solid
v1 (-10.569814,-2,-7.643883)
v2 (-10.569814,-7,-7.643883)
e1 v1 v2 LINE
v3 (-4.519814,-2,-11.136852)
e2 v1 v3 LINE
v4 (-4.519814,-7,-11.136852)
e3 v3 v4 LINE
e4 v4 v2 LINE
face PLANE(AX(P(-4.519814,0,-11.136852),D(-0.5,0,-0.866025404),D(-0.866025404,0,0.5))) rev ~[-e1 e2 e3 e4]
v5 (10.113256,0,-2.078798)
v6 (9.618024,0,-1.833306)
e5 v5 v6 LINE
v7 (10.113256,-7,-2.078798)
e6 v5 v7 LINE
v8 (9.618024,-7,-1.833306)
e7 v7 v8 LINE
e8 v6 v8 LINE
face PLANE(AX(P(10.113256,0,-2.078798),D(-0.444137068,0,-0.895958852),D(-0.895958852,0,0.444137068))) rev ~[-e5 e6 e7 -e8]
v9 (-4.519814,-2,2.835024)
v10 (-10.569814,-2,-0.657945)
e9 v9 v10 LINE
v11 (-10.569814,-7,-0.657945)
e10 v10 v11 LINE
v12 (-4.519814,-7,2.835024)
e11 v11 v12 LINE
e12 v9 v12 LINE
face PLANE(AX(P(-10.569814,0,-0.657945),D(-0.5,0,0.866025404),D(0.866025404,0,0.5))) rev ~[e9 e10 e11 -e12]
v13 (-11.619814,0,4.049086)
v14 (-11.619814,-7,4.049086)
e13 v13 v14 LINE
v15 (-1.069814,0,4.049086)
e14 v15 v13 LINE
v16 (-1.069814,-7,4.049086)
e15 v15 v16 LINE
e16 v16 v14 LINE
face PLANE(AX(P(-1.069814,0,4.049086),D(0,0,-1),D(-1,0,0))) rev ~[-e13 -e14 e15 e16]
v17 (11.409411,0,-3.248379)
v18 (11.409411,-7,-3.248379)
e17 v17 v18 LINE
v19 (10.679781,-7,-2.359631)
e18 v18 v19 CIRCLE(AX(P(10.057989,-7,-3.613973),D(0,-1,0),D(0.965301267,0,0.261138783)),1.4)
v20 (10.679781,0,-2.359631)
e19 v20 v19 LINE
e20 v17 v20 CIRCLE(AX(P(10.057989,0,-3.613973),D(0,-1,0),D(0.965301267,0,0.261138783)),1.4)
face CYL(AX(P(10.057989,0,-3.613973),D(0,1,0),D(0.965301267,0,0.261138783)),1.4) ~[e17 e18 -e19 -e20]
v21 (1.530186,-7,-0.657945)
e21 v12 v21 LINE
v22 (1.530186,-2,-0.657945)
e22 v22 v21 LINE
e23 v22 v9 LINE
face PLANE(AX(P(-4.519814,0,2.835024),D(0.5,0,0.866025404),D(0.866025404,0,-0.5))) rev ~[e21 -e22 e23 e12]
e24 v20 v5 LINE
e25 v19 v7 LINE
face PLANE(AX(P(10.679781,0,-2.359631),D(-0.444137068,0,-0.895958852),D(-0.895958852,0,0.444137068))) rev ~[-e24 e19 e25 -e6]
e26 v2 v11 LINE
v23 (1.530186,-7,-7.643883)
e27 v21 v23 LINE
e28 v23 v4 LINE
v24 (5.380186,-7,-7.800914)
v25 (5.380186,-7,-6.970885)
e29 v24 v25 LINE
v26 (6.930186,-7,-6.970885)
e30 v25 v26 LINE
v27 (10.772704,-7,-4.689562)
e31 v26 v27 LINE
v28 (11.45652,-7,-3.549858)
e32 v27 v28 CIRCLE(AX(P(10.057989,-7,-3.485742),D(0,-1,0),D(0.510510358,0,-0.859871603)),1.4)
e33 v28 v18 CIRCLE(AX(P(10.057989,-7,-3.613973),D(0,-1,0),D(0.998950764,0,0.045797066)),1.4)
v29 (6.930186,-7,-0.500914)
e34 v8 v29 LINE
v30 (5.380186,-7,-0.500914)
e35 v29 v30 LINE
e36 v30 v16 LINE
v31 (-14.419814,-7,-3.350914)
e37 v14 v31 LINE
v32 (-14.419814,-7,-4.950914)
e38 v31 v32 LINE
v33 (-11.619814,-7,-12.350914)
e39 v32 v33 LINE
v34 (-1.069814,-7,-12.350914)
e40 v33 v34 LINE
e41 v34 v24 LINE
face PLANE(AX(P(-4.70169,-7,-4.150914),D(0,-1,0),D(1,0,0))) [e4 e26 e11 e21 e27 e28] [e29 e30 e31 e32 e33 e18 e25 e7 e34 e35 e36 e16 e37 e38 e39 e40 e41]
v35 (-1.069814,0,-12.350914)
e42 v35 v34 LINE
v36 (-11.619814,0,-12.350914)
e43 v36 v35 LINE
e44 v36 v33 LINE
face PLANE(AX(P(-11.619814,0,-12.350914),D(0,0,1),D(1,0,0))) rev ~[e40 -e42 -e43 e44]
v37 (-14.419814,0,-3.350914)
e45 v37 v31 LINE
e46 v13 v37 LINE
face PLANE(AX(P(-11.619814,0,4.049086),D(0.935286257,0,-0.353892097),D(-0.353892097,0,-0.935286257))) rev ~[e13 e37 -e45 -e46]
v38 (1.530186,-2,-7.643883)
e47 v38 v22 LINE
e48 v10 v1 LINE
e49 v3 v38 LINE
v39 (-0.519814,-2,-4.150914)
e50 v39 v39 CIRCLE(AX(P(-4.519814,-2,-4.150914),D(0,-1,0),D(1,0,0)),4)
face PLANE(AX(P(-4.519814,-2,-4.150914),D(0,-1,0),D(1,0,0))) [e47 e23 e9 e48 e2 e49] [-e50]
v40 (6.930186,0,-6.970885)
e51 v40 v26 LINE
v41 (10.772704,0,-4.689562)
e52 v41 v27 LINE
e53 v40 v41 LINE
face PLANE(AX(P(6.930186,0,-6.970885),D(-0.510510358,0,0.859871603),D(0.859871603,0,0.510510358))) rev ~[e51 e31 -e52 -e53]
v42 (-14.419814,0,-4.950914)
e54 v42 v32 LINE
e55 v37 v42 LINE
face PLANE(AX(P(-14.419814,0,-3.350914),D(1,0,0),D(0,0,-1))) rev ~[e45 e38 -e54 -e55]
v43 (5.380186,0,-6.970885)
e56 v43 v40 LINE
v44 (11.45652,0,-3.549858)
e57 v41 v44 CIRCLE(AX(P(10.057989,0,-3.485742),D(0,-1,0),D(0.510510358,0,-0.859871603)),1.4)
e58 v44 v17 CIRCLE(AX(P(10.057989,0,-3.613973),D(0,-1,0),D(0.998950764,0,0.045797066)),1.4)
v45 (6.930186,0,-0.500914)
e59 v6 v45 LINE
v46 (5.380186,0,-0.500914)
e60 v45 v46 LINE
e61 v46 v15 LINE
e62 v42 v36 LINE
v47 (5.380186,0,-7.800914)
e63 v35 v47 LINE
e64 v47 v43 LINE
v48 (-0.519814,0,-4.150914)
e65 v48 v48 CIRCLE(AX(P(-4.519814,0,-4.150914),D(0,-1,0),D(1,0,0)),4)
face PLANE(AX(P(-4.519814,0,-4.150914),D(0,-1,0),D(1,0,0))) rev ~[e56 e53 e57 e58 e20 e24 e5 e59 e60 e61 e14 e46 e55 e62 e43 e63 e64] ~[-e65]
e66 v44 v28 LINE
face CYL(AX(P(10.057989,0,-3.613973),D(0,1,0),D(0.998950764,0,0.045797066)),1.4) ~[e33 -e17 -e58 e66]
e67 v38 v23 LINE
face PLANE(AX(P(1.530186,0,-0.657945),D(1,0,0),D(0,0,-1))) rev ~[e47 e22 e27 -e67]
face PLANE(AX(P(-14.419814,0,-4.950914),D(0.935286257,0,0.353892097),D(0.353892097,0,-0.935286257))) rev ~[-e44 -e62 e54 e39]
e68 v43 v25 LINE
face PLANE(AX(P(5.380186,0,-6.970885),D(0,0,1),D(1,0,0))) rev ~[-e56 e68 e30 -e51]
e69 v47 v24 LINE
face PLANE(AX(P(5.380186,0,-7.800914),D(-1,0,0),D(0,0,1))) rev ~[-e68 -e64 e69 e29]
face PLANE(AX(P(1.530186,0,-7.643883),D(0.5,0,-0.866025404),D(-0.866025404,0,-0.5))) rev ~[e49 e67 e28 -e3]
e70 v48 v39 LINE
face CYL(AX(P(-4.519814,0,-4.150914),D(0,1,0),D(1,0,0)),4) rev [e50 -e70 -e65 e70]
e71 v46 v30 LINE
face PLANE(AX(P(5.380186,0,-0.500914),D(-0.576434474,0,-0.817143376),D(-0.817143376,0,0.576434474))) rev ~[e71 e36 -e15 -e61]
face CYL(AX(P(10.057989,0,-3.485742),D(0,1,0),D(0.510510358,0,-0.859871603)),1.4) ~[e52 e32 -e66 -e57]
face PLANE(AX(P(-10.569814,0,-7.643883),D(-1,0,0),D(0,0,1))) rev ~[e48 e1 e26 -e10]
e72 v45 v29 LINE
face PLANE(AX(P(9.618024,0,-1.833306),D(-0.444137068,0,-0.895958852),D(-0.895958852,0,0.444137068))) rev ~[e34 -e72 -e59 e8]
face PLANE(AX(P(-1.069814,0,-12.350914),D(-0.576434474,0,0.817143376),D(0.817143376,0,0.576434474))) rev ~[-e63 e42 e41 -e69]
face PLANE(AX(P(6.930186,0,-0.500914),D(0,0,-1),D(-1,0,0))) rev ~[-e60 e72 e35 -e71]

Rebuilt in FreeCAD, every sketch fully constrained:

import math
import FreeCAD as App
import Part
import Sketcher

V = App.Vector
Q = App.Units.Quantity


def add_polygon(sketch, points):
    """Adds a closed chain of lines whose ends are joined by coincident constraints."""
    first, n = sketch.GeometryCount, len(points)
    for a, b in zip(points, points[1:] + points[:1]):
        sketch.addGeometry(Part.LineSegment(App.Vector(*a, 0), App.Vector(*b, 0)), False)
    for i in range(n):
        sketch.addConstraint(Sketcher.Constraint("Coincident", first + i, 2, first + (i + 1) % n, 1))

doc = App.newDocument("Part")
params = doc.addObject("Spreadsheet::Sheet", "Params")
for row, (alias, value) in enumerate([
    ("sketch1_radius", "1.4 mm"),
    ("sketch1_height", "1.6 mm"),
    ("sketch1_width", "10.55 mm"),
    ("sketch1_width2", "1.55 mm"),
    ("pad1_length", "7 mm"),
    ("sketch2_diameter", "8 mm"),
    ("pad2_length", "2 mm"),
], start=1):
    params.set(f"A{row}", alias)
    params.set(f"B{row}", "=" + value)
    params.setAlias(f"B{row}", alias)

body = doc.addObject("PartDesign::Body", "Body")

# Sketch on XZ plane
sketch1 = doc.addObject("Sketcher::SketchObject", "Sketch")
body.addObject(sketch1)
sketch1.AttachmentSupport = (doc.XZ_Plane, [""])
sketch1.MapMode = "FlatFace"
sketch1.addGeometry(Part.LineSegment(V(5.38, -0.5, 0), V(-1.07, 4.05, 0)), False)  # 0
sketch1.addGeometry(Part.LineSegment(V(-1.07, 4.05, 0), V(-11.62, 4.05, 0)), False)  # 1
sketch1.addGeometry(Part.LineSegment(V(-11.62, 4.05, 0), V(-14.42, -3.35, 0)), False)  # 2
sketch1.addGeometry(Part.LineSegment(V(-14.42, -3.35, 0), V(-14.42, -4.95, 0)), False)  # 3
sketch1.addGeometry(Part.LineSegment(V(-14.42, -4.95, 0), V(-11.62, -12.35, 0)), False)  # 4
sketch1.addGeometry(Part.LineSegment(V(-11.62, -12.35, 0), V(-1.07, -12.35, 0)), False)  # 5
sketch1.addGeometry(Part.LineSegment(V(-1.07, -12.35, 0), V(5.38, -7.8, 0)), False)  # 6
sketch1.addGeometry(Part.LineSegment(V(5.38, -7.8, 0), V(5.38, -6.97, 0)), False)  # 7
sketch1.addGeometry(Part.LineSegment(V(5.38, -6.97, 0), V(6.93, -6.97, 0)), False)  # 8
sketch1.addGeometry(Part.LineSegment(V(6.93, -6.97, 0), V(10.77, -4.69, 0)), False)  # 9
sketch1.addGeometry(Part.ArcOfCircle(Part.Circle(V(10.06, -3.49, 0), V(0, 0, 1), 1.4), math.radians(-59), math.radians(-3)), False)  # 10
sketch1.addGeometry(Part.ArcOfCircle(Part.Circle(V(10.06, -3.61, 0), V(0, 0, 1), 1.4), math.radians(2.62), math.radians(15.14)), False)  # 11
sketch1.addGeometry(Part.ArcOfCircle(Part.Circle(V(10.06, -3.61, 0), V(0, 0, 1), 1.4), math.radians(15), math.radians(64)), False)  # 12
sketch1.addGeometry(Part.LineSegment(V(10.68, -2.36, 0), V(10.11, -2.08, 0)), False)  # 13
sketch1.addGeometry(Part.LineSegment(V(10.11, -2.08, 0), V(9.62, -1.83, 0)), False)  # 14
sketch1.addGeometry(Part.LineSegment(V(9.62, -1.83, 0), V(6.93, -0.5, 0)), False)  # 15
sketch1.addGeometry(Part.LineSegment(V(6.93, -0.5, 0), V(5.38, -0.5, 0)), False)  # 16
add_polygon(sketch1, [(-4.52, 2.84), (1.53, -0.66), (1.53, -7.64), (-4.52, -11.14), (-10.57, -7.64), (-10.57, -0.66)])  # lines 17-22
sketch1.addConstraint([
    Sketcher.Constraint("Coincident", 0, 2, 1, 1),
    Sketcher.Constraint("Coincident", 1, 2, 2, 1),
    Sketcher.Constraint("Coincident", 2, 2, 3, 1),
    Sketcher.Constraint("Coincident", 3, 2, 4, 1),
    Sketcher.Constraint("Coincident", 4, 2, 5, 1),
    Sketcher.Constraint("Coincident", 5, 2, 6, 1),
    Sketcher.Constraint("Coincident", 6, 2, 7, 1),
    Sketcher.Constraint("Coincident", 7, 2, 8, 1),
    Sketcher.Constraint("Coincident", 8, 2, 9, 1),
    Sketcher.Constraint("Tangent", 9, 2, 10, 1),
    Sketcher.Constraint("Coincident", 10, 2, 11, 1),
    Sketcher.Constraint("Tangent", 11, 2, 12, 1),
    Sketcher.Constraint("Tangent", 12, 2, 13, 1),
    Sketcher.Constraint("Coincident", 13, 2, 14, 1),
    Sketcher.Constraint("Coincident", 14, 2, 15, 1),
    Sketcher.Constraint("Coincident", 15, 2, 16, 1),
    Sketcher.Constraint("Coincident", 16, 2, 0, 1),
    Sketcher.Constraint("Horizontal", 1),
    Sketcher.Constraint("Vertical", 3),
    Sketcher.Constraint("Horizontal", 5),
    Sketcher.Constraint("Vertical", 7),
    Sketcher.Constraint("Horizontal", 8),
    Sketcher.Constraint("Horizontal", 16),
    Sketcher.Constraint("Vertical", 18),
    Sketcher.Constraint("Vertical", 21),
    Sketcher.Constraint("Equal", 10, 11),
    Sketcher.Constraint("Equal", 11, 12),
    Sketcher.Constraint("Parallel", 13, 14),
    Sketcher.Constraint("Parallel", 14, 15),
    Sketcher.Constraint("Parallel", 17, 20),
    Sketcher.Constraint("Parallel", 19, 22),
    Sketcher.Constraint("Horizontal", 18, 2, 20, 2),
    Sketcher.Constraint("Horizontal", 17, 2, 21, 2),
    Sketcher.Constraint("Vertical", 10, 3, 11, 3),
    Sketcher.Constraint("Vertical", 1, 2, 4, 2),
    Sketcher.Constraint("Vertical", 0, 2, 5, 2),
    Sketcher.Constraint("Vertical", 8, 2, 15, 2),
    Sketcher.Constraint("Vertical", 7, 2, 16, 2),
    Sketcher.Constraint("Vertical", 19, 2, 22, 2),
    Sketcher.Constraint("Equal", 2, 4),
    Sketcher.Constraint("Equal", 0, 6),
    Sketcher.Constraint("Radius", 10, 1.4),
    Sketcher.Constraint("Angle", 17, Q("-30 deg")),
    Sketcher.Constraint("DistanceY", 3, 2, 3, 1, 1.6),
    Sketcher.Constraint("DistanceY", 3, 2, 1, 2, 9.0),
    Sketcher.Constraint("DistanceX", 1, 2, 1, 1, 10.55),
    Sketcher.Constraint("DistanceX", 8, 1, 8, 2, 1.55),
    Sketcher.Constraint("DistanceX", 2, 2, 1, 2, 2.8),
    Sketcher.Constraint("DistanceX", 0, 2, 17, 2, 2.6),
    Sketcher.Constraint("DistanceX", 17, 2, 15, 2, 5.4),
    Sketcher.Constraint("DistanceX", 4, 2, 19, 2, 7.1),
    Sketcher.Constraint("DistanceY", 5, 2, 6, 2, 4.55),
    Sketcher.Constraint("DistanceY", 7, 1, 7, 2, 0.830029),
    Sketcher.Constraint("DistanceY", 18, 2, 18, 1, 6.985938),
    Sketcher.Constraint("DistanceY", 13, 2, -1, 1, 2.078798),
    Sketcher.Constraint("Distance", 9, 4.468711),
    Sketcher.Constraint("Distance", 13, 0.632311),
    Sketcher.Constraint("Distance", 14, 0.55274),
    Sketcher.Constraint("DistanceX", -1, 1, 10, 3, 10.057989),
    Sketcher.Constraint("DistanceY", 10, 3, -1, 1, 3.485742),
    Sketcher.Constraint("DistanceY", 9, 2, -1, 1, 4.689562),
    Sketcher.Constraint("DistanceX", -1, 1, 11, 2, 11.409411),
    Sketcher.Constraint("DistanceY", 17, 2, 16, 2, 0.157031),
])
sketch1.setExpression("Constraints[47]", "Params.sketch1_radius")
sketch1.setExpression("Constraints[49]", "Params.sketch1_height")
sketch1.setExpression("Constraints[51]", "Params.sketch1_width")
sketch1.setExpression("Constraints[52]", "Params.sketch1_width2")
pad1 = doc.addObject("PartDesign::Pad", "Pad")
body.addObject(pad1)
pad1.Profile = sketch1
pad1.setExpression("Length", "Params.pad1_length")

# Sketch on XZ plane
sketch2 = doc.addObject("Sketcher::SketchObject", "Sketch001")
body.addObject(sketch2)
sketch2.AttachmentSupport = (doc.XZ_Plane, [""])
sketch2.MapMode = "FlatFace"
add_polygon(sketch2, [(-4.5, -11.1), (1.5, -7.6), (1.5, -0.7), (-4.5, 2.8), (-10.6, -0.7), (-10.6, -7.6)])  # lines 0-5
sketch2.addGeometry(Part.Circle(V(-4.5, -4.2, 0), V(0, 0, 1), 4), False)  # 6
sketch2.addConstraint([
    Sketcher.Constraint("Vertical", 1),
    Sketcher.Constraint("Vertical", 4),
    Sketcher.Constraint("Parallel", 0, 3),
    Sketcher.Constraint("Parallel", 2, 5),
    Sketcher.Constraint("Horizontal", 1, 2, 3, 2),
    Sketcher.Constraint("Horizontal", 0, 2, 4, 2),
    Sketcher.Constraint("Vertical", 6, 3, 2, 2),
    Sketcher.Constraint("Vertical", 2, 2, 5, 2),
    Sketcher.Constraint("Diameter", 6, 8.0),
    Sketcher.Constraint("Angle", 0, Q("30 deg")),
    Sketcher.Constraint("DistanceX", 3, 2, 1, 2, 12.1),
    Sketcher.Constraint("DistanceY", 1, 1, 1, 2, 6.985938),
    Sketcher.Constraint("DistanceY", 0, 2, 6, 3, 3.492969),
    Sketcher.Constraint("DistanceX", 6, 3, -1, 1, 4.519814),
    Sketcher.Constraint("DistanceY", 6, 3, -1, 1, 4.150914),
])
sketch2.setExpression("Constraints[14]", "Params.sketch2_diameter")
pad2 = doc.addObject("PartDesign::Pad", "Pad001")
body.addObject(pad2)
pad2.Profile = sketch2
pad2.setExpression("Length", "Params.pad2_length")

doc.recompute()
